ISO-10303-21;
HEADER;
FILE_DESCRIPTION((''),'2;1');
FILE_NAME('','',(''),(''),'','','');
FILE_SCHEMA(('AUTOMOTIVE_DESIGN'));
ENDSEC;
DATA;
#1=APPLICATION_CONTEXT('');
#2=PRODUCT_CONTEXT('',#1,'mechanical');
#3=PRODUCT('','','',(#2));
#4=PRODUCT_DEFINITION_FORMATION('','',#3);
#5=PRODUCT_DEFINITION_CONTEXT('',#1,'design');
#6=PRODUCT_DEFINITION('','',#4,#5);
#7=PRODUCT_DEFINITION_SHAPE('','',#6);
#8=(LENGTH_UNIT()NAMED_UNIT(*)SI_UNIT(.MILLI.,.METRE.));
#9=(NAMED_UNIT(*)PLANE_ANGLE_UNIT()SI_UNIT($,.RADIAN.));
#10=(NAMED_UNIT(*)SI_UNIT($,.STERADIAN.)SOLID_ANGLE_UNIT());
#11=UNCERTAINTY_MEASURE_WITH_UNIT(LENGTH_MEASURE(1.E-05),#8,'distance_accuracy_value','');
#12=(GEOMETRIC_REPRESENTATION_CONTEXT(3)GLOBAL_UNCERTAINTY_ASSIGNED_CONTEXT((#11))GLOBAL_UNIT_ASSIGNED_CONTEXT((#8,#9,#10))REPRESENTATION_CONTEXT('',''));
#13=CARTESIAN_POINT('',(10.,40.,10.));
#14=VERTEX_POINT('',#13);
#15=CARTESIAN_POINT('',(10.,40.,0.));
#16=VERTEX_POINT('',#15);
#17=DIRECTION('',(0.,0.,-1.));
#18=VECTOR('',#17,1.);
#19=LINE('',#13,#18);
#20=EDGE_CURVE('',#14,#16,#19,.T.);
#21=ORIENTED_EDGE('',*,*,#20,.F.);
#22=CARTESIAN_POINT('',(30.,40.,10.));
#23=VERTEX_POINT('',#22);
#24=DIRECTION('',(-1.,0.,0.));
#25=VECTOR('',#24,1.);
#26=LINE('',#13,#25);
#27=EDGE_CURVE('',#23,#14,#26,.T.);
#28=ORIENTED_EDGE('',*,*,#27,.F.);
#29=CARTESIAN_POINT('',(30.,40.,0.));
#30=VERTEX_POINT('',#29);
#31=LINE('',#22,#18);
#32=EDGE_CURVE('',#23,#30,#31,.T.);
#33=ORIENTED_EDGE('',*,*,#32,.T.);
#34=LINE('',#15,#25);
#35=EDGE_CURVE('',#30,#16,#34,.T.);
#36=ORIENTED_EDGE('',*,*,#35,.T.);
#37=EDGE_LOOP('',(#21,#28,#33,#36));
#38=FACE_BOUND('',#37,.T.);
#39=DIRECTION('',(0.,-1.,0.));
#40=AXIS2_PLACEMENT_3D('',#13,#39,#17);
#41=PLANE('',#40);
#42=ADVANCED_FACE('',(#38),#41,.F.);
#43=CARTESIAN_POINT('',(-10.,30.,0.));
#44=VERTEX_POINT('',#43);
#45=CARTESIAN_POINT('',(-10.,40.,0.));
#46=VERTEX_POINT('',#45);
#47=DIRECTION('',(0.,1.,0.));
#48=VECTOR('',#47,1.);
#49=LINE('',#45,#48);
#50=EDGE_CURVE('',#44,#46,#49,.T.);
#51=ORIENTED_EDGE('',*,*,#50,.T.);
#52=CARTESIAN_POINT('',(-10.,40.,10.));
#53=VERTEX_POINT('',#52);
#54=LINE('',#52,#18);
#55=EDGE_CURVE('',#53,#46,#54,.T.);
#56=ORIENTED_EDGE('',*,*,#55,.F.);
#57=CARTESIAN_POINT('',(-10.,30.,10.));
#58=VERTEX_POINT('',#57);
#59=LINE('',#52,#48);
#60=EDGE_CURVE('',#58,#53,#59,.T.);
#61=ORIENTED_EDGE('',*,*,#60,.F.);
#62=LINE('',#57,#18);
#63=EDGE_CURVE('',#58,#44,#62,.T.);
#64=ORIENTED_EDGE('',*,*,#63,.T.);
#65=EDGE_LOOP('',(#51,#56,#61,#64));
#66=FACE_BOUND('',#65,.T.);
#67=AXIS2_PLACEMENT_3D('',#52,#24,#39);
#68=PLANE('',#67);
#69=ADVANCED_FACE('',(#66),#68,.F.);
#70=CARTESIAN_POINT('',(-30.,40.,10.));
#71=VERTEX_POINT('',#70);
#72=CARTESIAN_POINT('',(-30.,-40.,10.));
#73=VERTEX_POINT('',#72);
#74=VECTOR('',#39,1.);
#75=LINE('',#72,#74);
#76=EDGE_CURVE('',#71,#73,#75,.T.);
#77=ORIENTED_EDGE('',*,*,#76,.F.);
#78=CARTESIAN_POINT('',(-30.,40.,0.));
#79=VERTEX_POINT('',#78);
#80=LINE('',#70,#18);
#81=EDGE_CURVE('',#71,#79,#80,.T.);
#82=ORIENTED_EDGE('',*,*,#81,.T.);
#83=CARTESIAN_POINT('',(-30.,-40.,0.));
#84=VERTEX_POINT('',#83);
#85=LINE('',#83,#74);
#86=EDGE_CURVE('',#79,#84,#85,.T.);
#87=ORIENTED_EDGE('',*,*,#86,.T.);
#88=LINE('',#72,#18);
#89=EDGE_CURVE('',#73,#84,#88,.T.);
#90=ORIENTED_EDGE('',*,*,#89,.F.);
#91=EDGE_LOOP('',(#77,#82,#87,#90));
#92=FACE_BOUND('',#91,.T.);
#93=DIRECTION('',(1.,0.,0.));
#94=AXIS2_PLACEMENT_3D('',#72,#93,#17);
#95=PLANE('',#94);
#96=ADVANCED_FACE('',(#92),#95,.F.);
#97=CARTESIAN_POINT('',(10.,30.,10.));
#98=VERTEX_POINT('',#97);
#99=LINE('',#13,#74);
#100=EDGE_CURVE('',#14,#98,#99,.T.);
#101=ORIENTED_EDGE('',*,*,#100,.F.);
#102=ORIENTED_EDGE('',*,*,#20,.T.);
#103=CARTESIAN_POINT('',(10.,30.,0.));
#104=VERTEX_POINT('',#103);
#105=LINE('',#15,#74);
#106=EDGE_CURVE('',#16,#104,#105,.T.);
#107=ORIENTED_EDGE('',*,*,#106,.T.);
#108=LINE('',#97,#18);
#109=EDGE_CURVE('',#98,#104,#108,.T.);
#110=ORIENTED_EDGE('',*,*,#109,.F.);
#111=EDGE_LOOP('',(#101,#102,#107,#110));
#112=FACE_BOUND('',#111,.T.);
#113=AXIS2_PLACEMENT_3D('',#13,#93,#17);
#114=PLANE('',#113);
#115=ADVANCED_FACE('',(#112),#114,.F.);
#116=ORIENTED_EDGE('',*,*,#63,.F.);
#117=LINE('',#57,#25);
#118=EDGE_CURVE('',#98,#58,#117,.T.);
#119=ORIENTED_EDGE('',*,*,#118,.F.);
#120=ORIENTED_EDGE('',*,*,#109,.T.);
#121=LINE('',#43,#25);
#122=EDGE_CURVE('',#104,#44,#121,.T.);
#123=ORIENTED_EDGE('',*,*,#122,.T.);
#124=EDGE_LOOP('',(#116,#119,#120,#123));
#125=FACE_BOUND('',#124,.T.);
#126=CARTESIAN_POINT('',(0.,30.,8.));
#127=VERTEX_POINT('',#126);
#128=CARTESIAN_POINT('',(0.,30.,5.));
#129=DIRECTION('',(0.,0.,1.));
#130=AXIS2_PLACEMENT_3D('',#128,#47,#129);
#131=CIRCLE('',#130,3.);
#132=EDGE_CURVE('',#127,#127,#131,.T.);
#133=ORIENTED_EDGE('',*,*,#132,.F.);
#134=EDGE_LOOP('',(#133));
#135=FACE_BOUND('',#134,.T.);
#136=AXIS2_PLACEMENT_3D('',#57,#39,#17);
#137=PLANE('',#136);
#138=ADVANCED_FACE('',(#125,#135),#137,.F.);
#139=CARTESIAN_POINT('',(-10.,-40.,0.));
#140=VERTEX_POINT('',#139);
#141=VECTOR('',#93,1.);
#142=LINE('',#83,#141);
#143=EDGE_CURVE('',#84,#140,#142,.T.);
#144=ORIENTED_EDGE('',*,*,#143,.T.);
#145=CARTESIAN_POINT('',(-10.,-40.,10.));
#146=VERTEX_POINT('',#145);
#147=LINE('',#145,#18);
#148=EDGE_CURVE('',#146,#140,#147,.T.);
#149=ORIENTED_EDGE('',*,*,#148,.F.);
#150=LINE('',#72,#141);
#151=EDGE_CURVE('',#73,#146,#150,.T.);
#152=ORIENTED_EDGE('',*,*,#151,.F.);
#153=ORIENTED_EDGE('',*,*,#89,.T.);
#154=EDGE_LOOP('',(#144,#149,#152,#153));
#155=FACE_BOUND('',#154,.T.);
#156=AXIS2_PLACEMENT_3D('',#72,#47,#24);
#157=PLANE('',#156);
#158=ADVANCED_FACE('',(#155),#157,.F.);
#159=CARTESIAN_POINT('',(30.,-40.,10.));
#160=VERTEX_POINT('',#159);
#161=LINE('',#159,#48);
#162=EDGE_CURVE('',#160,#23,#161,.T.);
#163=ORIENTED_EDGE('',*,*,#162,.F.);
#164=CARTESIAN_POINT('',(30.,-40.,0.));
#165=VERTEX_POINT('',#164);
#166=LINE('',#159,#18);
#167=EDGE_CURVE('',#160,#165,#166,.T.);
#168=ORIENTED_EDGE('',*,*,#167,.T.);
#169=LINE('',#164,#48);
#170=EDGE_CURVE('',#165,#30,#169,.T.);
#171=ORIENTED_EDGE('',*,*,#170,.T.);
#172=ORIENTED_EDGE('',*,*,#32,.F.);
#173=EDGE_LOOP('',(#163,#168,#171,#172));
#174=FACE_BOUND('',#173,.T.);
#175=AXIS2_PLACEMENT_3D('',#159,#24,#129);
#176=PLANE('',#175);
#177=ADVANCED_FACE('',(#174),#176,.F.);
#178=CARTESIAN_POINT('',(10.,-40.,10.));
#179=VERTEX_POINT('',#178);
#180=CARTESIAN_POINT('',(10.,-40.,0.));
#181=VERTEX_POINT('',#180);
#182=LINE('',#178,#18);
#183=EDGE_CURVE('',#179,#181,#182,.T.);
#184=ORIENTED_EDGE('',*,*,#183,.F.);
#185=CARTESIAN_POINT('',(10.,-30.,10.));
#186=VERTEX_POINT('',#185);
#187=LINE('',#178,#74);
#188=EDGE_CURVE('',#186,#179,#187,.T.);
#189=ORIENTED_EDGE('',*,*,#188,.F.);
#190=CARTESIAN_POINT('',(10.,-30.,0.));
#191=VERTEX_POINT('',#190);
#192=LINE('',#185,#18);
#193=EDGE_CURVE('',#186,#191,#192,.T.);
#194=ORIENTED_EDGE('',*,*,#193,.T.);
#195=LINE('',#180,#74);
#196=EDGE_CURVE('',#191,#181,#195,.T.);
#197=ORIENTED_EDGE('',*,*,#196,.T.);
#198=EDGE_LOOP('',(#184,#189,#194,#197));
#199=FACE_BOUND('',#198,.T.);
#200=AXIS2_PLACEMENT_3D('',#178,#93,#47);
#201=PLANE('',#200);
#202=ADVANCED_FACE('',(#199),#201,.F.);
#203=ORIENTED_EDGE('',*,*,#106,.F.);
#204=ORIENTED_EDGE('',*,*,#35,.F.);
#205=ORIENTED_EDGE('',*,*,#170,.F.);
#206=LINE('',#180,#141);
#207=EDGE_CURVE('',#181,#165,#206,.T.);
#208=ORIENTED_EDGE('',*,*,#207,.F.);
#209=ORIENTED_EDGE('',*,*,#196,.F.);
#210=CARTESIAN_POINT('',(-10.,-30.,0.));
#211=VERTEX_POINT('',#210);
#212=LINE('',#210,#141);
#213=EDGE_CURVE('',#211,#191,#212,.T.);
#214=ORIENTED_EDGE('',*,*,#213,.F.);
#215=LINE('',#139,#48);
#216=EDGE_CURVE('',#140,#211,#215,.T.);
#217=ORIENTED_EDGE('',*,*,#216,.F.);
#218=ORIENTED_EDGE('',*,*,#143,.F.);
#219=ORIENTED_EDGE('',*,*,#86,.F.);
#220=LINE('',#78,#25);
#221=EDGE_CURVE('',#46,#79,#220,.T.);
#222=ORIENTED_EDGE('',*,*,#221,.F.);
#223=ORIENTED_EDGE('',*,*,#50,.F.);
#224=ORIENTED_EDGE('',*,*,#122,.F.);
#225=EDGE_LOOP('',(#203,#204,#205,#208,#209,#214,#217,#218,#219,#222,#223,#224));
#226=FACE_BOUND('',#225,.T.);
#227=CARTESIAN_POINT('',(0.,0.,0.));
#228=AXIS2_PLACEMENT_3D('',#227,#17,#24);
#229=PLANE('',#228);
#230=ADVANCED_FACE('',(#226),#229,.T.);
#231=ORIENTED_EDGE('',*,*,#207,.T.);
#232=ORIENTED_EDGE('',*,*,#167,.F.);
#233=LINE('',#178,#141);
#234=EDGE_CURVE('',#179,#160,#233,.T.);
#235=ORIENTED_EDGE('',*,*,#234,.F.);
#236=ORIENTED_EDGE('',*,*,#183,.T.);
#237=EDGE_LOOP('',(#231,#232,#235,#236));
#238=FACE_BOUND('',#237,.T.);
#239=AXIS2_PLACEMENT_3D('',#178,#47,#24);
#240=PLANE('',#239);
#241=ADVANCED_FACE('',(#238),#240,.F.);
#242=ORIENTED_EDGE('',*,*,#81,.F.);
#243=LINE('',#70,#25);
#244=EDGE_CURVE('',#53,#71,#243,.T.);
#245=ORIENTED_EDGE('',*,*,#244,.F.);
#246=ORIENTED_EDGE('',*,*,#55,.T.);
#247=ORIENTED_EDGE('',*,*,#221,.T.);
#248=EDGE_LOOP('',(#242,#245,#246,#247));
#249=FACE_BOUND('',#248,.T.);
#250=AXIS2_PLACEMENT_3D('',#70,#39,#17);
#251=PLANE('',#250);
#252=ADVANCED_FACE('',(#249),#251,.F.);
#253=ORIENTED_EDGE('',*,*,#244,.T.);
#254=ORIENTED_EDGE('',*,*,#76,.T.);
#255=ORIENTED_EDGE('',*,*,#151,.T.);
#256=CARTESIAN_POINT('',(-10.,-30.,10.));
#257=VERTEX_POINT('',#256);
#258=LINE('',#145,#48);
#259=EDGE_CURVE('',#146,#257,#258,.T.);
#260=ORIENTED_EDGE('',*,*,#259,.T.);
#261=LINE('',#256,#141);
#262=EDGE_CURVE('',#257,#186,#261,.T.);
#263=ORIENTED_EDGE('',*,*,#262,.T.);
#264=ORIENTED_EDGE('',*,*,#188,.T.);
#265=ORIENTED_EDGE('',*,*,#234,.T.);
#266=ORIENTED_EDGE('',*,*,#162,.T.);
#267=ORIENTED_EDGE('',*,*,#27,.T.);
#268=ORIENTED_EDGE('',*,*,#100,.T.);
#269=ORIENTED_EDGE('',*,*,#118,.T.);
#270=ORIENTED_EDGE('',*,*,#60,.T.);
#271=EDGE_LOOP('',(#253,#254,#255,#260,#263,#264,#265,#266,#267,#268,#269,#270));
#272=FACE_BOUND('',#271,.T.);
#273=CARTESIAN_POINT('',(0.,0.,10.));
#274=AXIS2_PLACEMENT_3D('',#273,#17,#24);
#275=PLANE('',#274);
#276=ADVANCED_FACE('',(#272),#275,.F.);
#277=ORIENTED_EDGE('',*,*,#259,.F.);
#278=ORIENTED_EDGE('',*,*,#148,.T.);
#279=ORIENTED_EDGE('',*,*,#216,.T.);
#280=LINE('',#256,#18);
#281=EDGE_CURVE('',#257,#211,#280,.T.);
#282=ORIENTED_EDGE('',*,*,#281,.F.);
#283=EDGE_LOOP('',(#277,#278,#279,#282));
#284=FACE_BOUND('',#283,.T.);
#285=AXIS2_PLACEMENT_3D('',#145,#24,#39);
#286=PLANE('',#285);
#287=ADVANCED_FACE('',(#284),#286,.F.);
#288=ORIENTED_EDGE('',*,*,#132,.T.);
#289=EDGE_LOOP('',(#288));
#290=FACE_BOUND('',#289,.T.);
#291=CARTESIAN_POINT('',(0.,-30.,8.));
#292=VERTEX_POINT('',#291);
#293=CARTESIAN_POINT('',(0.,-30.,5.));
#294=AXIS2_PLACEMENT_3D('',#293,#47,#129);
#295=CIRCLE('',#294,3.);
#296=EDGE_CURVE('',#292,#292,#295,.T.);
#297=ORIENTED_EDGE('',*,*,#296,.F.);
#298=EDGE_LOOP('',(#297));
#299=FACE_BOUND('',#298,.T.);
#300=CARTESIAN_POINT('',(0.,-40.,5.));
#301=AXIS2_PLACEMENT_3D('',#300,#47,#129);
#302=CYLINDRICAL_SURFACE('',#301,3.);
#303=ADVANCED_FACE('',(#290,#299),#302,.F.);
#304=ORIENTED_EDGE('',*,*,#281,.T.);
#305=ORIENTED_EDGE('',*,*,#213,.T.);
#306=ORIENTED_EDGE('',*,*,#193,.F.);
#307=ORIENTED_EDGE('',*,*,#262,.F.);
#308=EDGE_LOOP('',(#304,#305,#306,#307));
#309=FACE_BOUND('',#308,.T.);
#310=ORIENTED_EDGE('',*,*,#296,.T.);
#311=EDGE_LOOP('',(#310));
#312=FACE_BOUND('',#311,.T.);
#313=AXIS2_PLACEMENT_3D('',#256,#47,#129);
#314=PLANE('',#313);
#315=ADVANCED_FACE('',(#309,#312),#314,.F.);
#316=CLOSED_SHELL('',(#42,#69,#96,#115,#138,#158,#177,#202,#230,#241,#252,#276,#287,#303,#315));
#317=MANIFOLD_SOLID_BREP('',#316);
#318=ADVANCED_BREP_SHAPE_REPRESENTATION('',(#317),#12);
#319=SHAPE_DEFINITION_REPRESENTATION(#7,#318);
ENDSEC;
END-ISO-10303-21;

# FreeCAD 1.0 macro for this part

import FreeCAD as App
import Part
import Sketcher
from FreeCAD import Vector
Q = App.Units.Quantity

doc = App.newDocument("Part")
params = doc.addObject("Spreadsheet::Sheet", "Params")
for row, (alias, value) in enumerate([
    ("sketch1_width", "20 mm"),
    ("sketch1_height", "10 mm"),
    ("sketch1_height2", "80 mm"),
    ("pad1_length", "10 mm"),
    ("sketch2_diameter", "6 mm"),
], start=1):
    params.set(f"A{row}", alias)
    params.set(f"B{row}", "=" + value)
    params.setAlias(f"B{row}", alias)

body = doc.addObject("PartDesign::Body", "Body")

sketch1 = body.newObject("Sketcher::SketchObject", "Sketch")
sketch1.AttachmentSupport = (doc.getObject("XY_Plane"), [""])
sketch1.MapMode = "FlatFace"
sketch1.addGeometry([
    Part.LineSegment(Vector(30, 40, 0), Vector(10, 40, 0)),
    Part.LineSegment(Vector(10, 40, 0), Vector(10, 30, 0)),
    Part.LineSegment(Vector(10, 30, 0), Vector(-10, 30, 0)),
    Part.LineSegment(Vector(-10, 30, 0), Vector(-10, 40, 0)),
    Part.LineSegment(Vector(-10, 40, 0), Vector(-30, 40, 0)),
    Part.LineSegment(Vector(-30, 40, 0), Vector(-30, -40, 0)),
    Part.LineSegment(Vector(-30, -40, 0), Vector(-10, -40, 0)),
    Part.LineSegment(Vector(-10, -40, 0), Vector(-10, -30, 0)),
    Part.LineSegment(Vector(-10, -30, 0), Vector(10, -30, 0)),
    Part.LineSegment(Vector(10, -30, 0), Vector(10, -40, 0)),
    Part.LineSegment(Vector(10, -40, 0), Vector(30, -40, 0)),
    Part.LineSegment(Vector(30, -40, 0), Vector(30, 40, 0)),
], False)
sketch1.addConstraint([
    Sketcher.Constraint("Coincident", 0, 2, 1, 1),
    Sketcher.Constraint("Coincident", 1, 2, 2, 1),
    Sketcher.Constraint("Coincident", 2, 2, 3, 1),
    Sketcher.Constraint("Coincident", 3, 2, 4, 1),
    Sketcher.Constraint("Coincident", 4, 2, 5, 1),
    Sketcher.Constraint("Coincident", 5, 2, 6, 1),
    Sketcher.Constraint("Coincident", 6, 2, 7, 1),
    Sketcher.Constraint("Coincident", 7, 2, 8, 1),
    Sketcher.Constraint("Coincident", 8, 2, 9, 1),
    Sketcher.Constraint("Coincident", 9, 2, 10, 1),
    Sketcher.Constraint("Coincident", 10, 2, 11, 1),
    Sketcher.Constraint("Coincident", 11, 2, 0, 1),
    Sketcher.Constraint("Horizontal", 0),
    Sketcher.Constraint("Vertical", 1),
    Sketcher.Constraint("Horizontal", 2),
    Sketcher.Constraint("Vertical", 3),
    Sketcher.Constraint("Horizontal", 4),
    Sketcher.Constraint("Vertical", 5),
    Sketcher.Constraint("Horizontal", 6),
    Sketcher.Constraint("Vertical", 7),
    Sketcher.Constraint("Horizontal", 8),
    Sketcher.Constraint("Vertical", 9),
    Sketcher.Constraint("Horizontal", 10),
    Sketcher.Constraint("Vertical", 11),
    Sketcher.Constraint("Symmetric", 0, 2, 6, 2, -1, 1),
    Sketcher.Constraint("Symmetric", 2, 2, 8, 2, -1, 1),
    Sketcher.Constraint("Symmetric", 4, 2, 10, 2, -1, 1),
    Sketcher.Constraint("Symmetric", 0, 2, 3, 2, -2),
    Sketcher.Constraint("Equal", 0, 2),
    Sketcher.Constraint("DistanceX", 0, 2, 0, 1, Q("20 mm")),
    Sketcher.Constraint("DistanceY", 1, 2, 1, 1, Q("10 mm")),
    Sketcher.Constraint("DistanceY", 5, 2, 5, 1, Q("80 mm")),
])
sketch1.setExpression("Constraints[29]", "Params.sketch1_width")
sketch1.setExpression("Constraints[30]", "Params.sketch1_height")
sketch1.setExpression("Constraints[31]", "Params.sketch1_height2")
pad1 = body.newObject("PartDesign::Pad", "Pad")
pad1.Profile = sketch1
pad1.setExpression("Length", "Params.pad1_length")

sketch2 = body.newObject("Sketcher::SketchObject", "Sketch001")
sketch2.AttachmentSupport = (doc.getObject("XZ_Plane"), [""])
sketch2.MapMode = "FlatFace"
sketch2.AttachmentOffset = App.Placement(Vector(0, 0, -30), App.Rotation())
sketch2.addGeometry(Part.Circle(Vector(0, 5, 0), Vector(0, 0, 1), 3), False)
sketch2.addConstraint([
    Sketcher.Constraint("PointOnObject", 0, 3, -2),
    Sketcher.Constraint("Diameter", 0, Q("6 mm")),
    Sketcher.Constraint("DistanceY", -1, 1, 0, 3, Q("5 mm")),
])
sketch2.setExpression("Constraints[1]", "Params.sketch2_diameter")
pocket1 = body.newObject("PartDesign::Pocket", "Pocket")
pocket1.Profile = sketch2
pocket1.Type = "ThroughAll"
pocket1.Reversed = True

doc.recompute()
